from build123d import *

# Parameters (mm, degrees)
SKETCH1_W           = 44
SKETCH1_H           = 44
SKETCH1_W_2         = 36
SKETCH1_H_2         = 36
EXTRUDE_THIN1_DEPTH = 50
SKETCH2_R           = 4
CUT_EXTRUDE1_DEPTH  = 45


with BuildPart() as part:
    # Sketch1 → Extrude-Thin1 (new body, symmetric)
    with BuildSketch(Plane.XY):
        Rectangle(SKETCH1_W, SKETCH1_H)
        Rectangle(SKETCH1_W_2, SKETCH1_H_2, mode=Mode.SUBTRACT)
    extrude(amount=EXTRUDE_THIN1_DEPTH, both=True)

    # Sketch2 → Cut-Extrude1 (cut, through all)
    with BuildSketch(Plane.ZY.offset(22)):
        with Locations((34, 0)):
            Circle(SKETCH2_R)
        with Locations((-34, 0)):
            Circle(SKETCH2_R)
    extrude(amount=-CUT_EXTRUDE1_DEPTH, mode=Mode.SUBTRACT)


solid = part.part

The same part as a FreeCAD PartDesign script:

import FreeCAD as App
import Part
import Sketcher

doc = App.newDocument("Part")
body = doc.addObject("PartDesign::Body", "Body")

# Sketch on XY plane
sketch1 = doc.addObject("Sketcher::SketchObject", "Sketch")
body.addObject(sketch1)
sketch1.AttachmentSupport = (doc.XY_Plane, [""])
sketch1.MapMode = "FlatFace"
sketch1.addGeometry([
    Part.LineSegment(App.Vector(-22, 22, 0), App.Vector(-22, -22, 0)),  # 0
    Part.LineSegment(App.Vector(-22, -22, 0), App.Vector(22, -22, 0)),  # 1
    Part.LineSegment(App.Vector(22, -22, 0), App.Vector(22, 22, 0)),  # 2
    Part.LineSegment(App.Vector(22, 22, 0), App.Vector(-22, 22, 0)),  # 3
    Part.LineSegment(App.Vector(18, -18, 0), App.Vector(-18, -18, 0)),  # 4
    Part.LineSegment(App.Vector(-18, -18, 0), App.Vector(-18, 18, 0)),  # 5
    Part.LineSegment(App.Vector(-18, 18, 0), App.Vector(18, 18, 0)),  # 6
    Part.LineSegment(App.Vector(18, 18, 0), App.Vector(18, -18, 0)),  # 7
], False)
sketch1.addConstraint([
    Sketcher.Constraint("Coincident", 0, 2, 1, 1),
    Sketcher.Constraint("Coincident", 1, 2, 2, 1),
    Sketcher.Constraint("Coincident", 2, 2, 3, 1),
    Sketcher.Constraint("Coincident", 3, 2, 0, 1),
    Sketcher.Constraint("Coincident", 4, 2, 5, 1),
    Sketcher.Constraint("Coincident", 5, 2, 6, 1),
    Sketcher.Constraint("Coincident", 6, 2, 7, 1),
    Sketcher.Constraint("Coincident", 7, 2, 4, 1),
    Sketcher.Constraint("Vertical", 0),
    Sketcher.Constraint("Horizontal", 1),
    Sketcher.Constraint("Vertical", 2),
    Sketcher.Constraint("Horizontal", 3),
    Sketcher.Constraint("Horizontal", 4),
    Sketcher.Constraint("Vertical", 5),
    Sketcher.Constraint("Horizontal", 6),
    Sketcher.Constraint("Vertical", 7),
    Sketcher.Constraint("Symmetric", 0, 2, 2, 2, -1, 1),
    Sketcher.Constraint("Symmetric", 4, 2, 6, 2, -1, 1),
    Sketcher.Constraint("Equal", 3, 0),
    Sketcher.Constraint("Equal", 6, 5),
    Sketcher.Constraint("DistanceX", 1, 1, 1, 2, 44.0),
    Sketcher.Constraint("DistanceX", 4, 2, 4, 1, 36.0),
])
pad1 = doc.addObject("PartDesign::Pad", "Pad")
body.addObject(pad1)
pad1.Profile = sketch1
pad1.Length = 100
pad1.Midplane = True

# Sketch on YZ plane
sketch2 = doc.addObject("Sketcher::SketchObject", "Sketch001")
body.addObject(sketch2)
sketch2.AttachmentSupport = (doc.YZ_Plane, [""])
sketch2.MapMode = "FlatFace"
sketch2.AttachmentOffset = App.Placement(App.Vector(0, 0, -22), App.Rotation())
sketch2.addGeometry([
    Part.Circle(App.Vector(0, 34, 0), App.Vector(0, 0, 1), 4),
    Part.Circle(App.Vector(0, -34, 0), App.Vector(0, 0, 1), 4),
], False)
sketch2.addConstraint([
    Sketcher.Constraint("Equal", 0, 1),
    Sketcher.Constraint("Symmetric", 0, 3, 1, 3, -1, 1),
    Sketcher.Constraint("PointOnObject", 0, 3, -2),
    Sketcher.Constraint("Diameter", 0, 8.0),
    Sketcher.Constraint("DistanceY", -1, 1, 0, 3, 34.0),
])
pocket1 = doc.addObject("PartDesign::Pocket", "Pocket")
body.addObject(pocket1)
pocket1.Profile = sketch2
pocket1.Type = "ThroughAll"
pocket1.Reversed = True

doc.recompute()
